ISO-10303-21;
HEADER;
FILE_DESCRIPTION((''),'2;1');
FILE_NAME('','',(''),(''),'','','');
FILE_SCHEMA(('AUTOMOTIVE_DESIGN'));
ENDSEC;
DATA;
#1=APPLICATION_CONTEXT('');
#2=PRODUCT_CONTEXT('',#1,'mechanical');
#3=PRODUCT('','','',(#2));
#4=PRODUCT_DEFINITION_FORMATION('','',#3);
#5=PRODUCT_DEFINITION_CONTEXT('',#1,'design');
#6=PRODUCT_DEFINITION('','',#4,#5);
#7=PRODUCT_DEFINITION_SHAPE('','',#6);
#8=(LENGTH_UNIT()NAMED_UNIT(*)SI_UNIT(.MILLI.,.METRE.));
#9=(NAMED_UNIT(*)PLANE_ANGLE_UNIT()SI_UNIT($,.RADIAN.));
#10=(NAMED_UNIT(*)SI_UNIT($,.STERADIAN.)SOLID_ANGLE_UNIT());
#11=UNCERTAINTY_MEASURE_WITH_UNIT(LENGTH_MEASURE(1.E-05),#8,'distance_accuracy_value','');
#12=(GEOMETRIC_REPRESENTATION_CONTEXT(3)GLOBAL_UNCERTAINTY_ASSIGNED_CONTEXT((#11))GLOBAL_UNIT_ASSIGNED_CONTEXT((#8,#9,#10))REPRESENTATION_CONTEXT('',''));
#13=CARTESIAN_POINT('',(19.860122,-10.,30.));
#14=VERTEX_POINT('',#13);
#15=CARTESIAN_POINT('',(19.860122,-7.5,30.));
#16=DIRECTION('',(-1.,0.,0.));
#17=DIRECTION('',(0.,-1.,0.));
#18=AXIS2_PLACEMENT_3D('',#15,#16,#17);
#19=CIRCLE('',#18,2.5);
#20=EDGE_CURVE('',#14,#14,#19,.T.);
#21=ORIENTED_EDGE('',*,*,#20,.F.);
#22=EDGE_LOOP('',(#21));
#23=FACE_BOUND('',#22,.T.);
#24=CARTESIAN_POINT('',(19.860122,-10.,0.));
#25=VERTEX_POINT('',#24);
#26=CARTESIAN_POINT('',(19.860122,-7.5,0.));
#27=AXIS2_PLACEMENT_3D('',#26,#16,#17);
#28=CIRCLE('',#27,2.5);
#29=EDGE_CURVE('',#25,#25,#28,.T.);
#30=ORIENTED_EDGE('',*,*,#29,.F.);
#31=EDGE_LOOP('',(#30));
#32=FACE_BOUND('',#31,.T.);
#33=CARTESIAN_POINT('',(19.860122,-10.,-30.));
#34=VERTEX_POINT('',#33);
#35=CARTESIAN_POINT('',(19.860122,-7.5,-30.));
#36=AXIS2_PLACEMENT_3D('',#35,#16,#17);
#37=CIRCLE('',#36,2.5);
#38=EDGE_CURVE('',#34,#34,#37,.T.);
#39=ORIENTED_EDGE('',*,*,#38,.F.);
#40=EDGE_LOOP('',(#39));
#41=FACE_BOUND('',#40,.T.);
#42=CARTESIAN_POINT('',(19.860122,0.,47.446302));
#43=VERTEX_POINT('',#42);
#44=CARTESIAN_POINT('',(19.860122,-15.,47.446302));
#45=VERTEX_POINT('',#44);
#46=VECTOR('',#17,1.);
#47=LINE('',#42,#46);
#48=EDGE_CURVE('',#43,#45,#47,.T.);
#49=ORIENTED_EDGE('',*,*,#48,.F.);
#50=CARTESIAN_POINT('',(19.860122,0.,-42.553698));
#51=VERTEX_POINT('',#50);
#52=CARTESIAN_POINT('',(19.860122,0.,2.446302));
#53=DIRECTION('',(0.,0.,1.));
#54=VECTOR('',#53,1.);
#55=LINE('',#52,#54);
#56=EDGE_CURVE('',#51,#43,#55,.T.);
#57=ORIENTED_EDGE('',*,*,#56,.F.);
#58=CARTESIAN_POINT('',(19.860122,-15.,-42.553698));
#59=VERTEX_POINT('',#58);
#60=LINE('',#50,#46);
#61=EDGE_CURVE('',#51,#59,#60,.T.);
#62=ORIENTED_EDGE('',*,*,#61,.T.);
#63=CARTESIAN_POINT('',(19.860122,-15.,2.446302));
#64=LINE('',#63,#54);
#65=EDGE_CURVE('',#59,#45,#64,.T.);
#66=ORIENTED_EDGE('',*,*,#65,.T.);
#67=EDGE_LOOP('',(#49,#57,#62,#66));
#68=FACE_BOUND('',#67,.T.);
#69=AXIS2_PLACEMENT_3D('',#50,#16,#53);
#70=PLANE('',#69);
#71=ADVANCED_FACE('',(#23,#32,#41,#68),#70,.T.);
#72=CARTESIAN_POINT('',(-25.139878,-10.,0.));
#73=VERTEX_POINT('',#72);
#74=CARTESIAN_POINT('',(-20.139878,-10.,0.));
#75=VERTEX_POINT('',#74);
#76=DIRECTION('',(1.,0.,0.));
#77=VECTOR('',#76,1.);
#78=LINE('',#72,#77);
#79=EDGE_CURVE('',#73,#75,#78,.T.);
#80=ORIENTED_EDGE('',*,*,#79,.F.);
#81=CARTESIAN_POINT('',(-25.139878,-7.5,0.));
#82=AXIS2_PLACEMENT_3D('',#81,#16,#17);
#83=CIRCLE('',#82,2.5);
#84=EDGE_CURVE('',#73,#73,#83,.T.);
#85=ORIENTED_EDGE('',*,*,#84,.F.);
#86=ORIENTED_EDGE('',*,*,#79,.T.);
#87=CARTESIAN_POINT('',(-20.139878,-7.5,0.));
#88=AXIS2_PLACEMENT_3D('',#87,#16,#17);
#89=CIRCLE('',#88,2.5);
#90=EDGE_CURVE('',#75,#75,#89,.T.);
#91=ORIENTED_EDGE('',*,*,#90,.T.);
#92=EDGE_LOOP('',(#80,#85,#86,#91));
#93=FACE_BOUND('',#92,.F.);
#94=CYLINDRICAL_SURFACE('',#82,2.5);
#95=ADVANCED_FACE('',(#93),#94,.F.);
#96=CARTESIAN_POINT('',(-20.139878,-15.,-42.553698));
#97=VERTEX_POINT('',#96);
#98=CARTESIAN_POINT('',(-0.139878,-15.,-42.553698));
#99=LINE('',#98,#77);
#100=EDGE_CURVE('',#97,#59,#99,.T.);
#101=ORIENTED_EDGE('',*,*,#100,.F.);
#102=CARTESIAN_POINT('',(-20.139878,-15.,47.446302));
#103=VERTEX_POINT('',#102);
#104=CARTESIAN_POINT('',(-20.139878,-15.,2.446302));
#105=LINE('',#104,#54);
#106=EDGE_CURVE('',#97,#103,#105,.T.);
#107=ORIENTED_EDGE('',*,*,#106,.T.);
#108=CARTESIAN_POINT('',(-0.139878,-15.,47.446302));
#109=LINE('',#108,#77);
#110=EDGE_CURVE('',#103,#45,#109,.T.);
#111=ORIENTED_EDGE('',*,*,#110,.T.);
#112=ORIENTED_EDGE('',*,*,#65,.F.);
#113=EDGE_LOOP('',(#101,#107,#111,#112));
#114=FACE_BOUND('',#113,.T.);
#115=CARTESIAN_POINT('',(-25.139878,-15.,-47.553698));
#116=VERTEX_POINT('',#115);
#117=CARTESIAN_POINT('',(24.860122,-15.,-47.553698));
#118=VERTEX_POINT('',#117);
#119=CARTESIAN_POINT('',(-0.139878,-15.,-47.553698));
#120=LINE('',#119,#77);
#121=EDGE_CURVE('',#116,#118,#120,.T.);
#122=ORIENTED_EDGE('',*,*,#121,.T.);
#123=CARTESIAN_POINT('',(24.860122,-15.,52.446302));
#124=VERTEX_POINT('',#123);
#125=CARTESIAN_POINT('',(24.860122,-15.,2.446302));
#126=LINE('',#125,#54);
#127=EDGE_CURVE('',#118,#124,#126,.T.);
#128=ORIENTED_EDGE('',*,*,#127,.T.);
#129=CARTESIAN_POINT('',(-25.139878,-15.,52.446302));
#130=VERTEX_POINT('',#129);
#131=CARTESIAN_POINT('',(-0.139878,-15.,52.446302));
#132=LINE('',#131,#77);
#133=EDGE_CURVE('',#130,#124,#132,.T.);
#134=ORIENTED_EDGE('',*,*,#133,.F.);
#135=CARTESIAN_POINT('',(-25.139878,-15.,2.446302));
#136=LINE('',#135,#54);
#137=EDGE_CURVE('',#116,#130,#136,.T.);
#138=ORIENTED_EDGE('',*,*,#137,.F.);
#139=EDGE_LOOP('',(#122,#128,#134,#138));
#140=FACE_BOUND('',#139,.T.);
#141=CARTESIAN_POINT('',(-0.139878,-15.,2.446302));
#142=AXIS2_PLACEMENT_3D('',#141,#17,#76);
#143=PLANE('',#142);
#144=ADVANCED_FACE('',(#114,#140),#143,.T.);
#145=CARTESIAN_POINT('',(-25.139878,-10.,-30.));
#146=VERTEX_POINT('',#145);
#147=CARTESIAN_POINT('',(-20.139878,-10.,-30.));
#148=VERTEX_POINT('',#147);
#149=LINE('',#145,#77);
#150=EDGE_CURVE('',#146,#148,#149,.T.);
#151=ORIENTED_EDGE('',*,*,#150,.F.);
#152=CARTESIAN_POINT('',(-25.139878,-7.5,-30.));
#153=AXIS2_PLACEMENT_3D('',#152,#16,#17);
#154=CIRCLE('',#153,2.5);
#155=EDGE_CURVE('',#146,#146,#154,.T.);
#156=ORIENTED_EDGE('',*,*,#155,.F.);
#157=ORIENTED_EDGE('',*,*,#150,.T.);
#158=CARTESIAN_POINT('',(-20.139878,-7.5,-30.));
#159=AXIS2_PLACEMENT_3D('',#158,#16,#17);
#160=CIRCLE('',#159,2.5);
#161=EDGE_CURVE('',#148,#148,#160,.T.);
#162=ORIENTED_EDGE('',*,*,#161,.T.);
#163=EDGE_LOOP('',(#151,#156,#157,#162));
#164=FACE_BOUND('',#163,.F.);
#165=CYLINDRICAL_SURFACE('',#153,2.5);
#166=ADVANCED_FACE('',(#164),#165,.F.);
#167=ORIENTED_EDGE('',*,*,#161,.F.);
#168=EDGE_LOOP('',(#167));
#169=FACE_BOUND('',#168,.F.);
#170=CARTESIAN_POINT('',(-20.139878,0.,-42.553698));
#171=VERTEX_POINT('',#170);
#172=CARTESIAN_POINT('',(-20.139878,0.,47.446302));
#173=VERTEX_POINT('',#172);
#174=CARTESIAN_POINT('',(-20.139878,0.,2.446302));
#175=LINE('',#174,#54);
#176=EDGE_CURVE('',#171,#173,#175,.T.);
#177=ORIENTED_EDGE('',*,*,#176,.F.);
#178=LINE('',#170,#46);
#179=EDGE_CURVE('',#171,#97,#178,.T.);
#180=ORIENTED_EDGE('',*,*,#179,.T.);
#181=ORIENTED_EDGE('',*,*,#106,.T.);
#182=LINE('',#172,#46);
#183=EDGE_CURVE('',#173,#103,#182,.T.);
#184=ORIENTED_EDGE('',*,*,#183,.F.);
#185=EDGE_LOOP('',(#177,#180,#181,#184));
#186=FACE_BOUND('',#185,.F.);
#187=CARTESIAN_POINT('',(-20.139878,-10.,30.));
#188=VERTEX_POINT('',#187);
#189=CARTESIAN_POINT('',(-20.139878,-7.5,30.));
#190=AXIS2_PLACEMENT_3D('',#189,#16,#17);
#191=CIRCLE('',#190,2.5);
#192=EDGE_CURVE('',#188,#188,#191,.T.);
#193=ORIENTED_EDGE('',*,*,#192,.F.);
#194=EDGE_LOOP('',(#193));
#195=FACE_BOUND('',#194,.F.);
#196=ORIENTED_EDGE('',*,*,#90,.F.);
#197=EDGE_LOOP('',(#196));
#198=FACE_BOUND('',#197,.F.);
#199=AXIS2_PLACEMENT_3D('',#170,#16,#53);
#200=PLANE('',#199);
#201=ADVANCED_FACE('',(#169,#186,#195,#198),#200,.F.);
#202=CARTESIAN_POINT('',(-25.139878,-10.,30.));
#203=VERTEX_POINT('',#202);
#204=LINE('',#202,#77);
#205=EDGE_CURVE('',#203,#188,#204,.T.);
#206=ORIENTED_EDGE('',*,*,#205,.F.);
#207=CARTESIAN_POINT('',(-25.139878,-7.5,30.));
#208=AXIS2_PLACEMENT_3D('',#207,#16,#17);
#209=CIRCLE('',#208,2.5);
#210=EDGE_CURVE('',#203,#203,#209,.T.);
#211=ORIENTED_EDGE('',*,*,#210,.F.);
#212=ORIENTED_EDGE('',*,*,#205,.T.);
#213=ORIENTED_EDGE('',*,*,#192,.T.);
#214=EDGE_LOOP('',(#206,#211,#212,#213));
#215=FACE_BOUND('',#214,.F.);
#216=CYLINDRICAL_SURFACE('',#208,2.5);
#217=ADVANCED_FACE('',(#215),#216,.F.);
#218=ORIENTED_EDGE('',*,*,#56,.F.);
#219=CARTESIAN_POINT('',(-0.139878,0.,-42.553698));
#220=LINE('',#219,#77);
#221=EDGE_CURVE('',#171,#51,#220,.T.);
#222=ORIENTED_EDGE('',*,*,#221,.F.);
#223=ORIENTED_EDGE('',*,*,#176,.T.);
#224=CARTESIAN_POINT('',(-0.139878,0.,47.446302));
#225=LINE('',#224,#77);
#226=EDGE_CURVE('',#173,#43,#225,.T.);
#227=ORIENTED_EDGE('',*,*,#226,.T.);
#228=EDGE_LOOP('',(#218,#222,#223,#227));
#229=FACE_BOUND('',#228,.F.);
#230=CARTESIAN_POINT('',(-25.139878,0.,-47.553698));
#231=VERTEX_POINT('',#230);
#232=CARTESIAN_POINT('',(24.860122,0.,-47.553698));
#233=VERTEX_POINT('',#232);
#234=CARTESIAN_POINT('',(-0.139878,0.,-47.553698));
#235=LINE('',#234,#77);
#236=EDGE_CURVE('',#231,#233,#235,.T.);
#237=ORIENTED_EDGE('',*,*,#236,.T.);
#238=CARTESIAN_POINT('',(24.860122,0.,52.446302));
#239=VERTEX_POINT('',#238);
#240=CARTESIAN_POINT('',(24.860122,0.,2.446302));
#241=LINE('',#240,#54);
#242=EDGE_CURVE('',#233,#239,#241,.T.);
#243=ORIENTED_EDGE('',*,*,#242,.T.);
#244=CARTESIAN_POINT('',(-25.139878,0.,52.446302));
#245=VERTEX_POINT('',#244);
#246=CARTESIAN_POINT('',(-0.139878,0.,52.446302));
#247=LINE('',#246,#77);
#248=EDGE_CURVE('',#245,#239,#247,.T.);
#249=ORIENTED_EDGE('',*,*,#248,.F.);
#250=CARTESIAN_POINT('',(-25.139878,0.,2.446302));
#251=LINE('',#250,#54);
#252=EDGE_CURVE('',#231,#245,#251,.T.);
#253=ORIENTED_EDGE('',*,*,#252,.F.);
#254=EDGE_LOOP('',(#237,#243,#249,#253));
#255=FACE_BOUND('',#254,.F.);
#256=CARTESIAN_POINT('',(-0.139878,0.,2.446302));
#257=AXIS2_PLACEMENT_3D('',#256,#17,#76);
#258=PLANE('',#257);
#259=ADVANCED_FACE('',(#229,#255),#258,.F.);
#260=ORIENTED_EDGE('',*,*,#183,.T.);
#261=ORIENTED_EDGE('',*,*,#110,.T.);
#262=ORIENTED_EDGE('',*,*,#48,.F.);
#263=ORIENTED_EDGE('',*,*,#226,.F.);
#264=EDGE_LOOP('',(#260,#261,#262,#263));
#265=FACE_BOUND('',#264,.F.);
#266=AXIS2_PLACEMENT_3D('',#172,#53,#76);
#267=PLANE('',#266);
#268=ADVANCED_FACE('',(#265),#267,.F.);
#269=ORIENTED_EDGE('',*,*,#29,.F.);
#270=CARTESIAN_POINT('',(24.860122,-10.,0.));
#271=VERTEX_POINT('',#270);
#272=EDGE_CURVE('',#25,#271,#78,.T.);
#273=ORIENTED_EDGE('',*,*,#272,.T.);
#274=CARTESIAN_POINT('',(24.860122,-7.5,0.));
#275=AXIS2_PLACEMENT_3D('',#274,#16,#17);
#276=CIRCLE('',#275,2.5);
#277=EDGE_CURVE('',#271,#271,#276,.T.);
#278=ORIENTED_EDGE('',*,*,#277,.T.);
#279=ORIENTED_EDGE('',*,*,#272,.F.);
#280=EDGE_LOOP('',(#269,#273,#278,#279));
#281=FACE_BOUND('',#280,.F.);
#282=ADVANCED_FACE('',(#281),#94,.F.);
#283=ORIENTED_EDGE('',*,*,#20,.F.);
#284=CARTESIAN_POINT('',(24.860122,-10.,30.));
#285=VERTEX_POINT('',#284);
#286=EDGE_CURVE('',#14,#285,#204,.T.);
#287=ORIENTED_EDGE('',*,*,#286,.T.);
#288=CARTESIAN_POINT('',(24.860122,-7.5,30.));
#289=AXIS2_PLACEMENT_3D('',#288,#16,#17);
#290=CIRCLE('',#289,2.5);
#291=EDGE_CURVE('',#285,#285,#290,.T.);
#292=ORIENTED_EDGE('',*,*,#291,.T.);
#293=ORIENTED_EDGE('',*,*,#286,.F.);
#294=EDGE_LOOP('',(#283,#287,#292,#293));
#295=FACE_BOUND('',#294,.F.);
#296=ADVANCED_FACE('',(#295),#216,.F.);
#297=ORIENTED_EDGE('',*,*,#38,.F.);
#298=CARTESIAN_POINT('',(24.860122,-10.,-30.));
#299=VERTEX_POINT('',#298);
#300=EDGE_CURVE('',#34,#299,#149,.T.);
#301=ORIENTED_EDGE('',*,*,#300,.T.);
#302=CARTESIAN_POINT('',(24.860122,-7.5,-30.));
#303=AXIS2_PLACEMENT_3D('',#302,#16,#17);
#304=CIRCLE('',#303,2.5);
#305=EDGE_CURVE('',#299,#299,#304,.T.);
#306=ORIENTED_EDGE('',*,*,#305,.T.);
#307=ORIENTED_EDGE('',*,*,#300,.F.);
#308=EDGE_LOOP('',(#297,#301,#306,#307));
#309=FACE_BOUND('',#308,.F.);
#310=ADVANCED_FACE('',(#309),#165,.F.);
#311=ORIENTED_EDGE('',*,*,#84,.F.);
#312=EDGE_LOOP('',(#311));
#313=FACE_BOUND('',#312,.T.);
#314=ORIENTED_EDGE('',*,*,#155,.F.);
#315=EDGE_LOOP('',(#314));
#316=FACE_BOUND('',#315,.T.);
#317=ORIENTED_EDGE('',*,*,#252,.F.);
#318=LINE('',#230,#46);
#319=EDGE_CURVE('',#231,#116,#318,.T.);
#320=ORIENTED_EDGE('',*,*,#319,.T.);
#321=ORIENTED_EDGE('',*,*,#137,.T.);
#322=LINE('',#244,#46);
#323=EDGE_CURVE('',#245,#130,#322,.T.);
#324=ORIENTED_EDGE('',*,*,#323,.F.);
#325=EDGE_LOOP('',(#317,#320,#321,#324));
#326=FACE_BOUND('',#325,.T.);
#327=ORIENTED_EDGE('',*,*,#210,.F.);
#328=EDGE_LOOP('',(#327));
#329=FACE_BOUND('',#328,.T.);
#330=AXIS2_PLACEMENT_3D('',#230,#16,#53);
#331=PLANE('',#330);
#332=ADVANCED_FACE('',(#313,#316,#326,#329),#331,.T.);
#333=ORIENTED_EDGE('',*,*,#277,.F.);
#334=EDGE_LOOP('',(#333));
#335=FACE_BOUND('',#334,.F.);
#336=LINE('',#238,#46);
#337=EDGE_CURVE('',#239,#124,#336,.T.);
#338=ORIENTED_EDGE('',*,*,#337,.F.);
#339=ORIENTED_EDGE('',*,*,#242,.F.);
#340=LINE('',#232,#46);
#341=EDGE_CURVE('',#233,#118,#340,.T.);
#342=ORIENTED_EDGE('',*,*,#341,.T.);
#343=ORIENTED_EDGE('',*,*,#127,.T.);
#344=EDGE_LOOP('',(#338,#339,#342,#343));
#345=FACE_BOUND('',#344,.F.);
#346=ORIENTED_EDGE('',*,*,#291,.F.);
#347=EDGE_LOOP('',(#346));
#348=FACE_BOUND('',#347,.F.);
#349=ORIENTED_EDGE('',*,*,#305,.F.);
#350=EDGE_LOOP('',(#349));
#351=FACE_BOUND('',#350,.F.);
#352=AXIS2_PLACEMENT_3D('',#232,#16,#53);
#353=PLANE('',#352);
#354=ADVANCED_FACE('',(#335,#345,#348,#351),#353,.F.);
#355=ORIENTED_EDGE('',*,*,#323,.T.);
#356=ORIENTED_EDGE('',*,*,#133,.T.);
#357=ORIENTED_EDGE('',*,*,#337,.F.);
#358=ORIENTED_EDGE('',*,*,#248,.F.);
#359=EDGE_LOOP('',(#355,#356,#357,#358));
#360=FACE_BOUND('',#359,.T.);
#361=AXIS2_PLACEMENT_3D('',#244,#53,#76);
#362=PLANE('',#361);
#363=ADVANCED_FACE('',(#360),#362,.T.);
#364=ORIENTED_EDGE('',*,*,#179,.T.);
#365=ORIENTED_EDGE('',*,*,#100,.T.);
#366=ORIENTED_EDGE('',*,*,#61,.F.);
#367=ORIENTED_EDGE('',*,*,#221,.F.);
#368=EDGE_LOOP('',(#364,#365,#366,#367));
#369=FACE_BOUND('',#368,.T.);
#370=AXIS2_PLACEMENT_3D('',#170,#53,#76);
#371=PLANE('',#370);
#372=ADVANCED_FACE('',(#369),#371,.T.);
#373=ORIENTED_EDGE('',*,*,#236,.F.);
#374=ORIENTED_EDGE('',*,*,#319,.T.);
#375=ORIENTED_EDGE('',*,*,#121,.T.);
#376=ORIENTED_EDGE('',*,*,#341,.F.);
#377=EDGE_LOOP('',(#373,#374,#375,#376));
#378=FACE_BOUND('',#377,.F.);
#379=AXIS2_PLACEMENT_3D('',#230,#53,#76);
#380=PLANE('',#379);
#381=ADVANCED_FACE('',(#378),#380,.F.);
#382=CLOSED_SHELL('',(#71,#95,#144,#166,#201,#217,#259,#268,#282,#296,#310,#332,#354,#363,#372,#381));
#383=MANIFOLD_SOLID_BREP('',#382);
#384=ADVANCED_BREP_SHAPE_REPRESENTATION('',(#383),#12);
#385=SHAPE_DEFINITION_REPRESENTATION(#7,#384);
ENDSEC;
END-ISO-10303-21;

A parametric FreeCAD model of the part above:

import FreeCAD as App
import Part
import Sketcher
from FreeCAD import Vector
Q = App.Units.Quantity


def add_polygon(sketch, points):
    """Adds a closed chain of lines whose ends are joined by coincident constraints."""
    first, n = sketch.GeometryCount, len(points)
    for a, b in zip(points, points[1:] + points[:1]):
        sketch.addGeometry(Part.LineSegment(App.Vector(*a, 0), App.Vector(*b, 0)), False)
    for i in range(n):
        sketch.addConstraint(Sketcher.Constraint("Coincident", first + i, 2, first + (i + 1) % n, 1))

doc = App.newDocument("Part")
body = doc.addObject("PartDesign::Body", "Body")

# Sketch on XZ plane
sketch1 = doc.addObject("Sketcher::SketchObject", "Sketch")
body.addObject(sketch1)
sketch1.AttachmentSupport = (doc.XZ_Plane, [""])
sketch1.MapMode = "FlatFace"
add_polygon(sketch1, [(-25, 52), (-25, -48), (25, -48), (25, 52)])  # lines 0-3
add_polygon(sketch1, [(20, -43), (-20, -43), (-20, 47), (20, 47)])  # lines 4-7
sketch1.addConstraint(Sketcher.Constraint("Vertical", 0))
sketch1.addConstraint(Sketcher.Constraint("Horizontal", 1))
sketch1.addConstraint(Sketcher.Constraint("Vertical", 2))
sketch1.addConstraint(Sketcher.Constraint("Horizontal", 3))
sketch1.addConstraint(Sketcher.Constraint("Horizontal", 4))
sketch1.addConstraint(Sketcher.Constraint("Vertical", 5))
sketch1.addConstraint(Sketcher.Constraint("Horizontal", 6))
sketch1.addConstraint(Sketcher.Constraint("Vertical", 7))
sketch1.addConstraint(Sketcher.Constraint("DistanceX", 1, 1, 1, 2, Q("50 mm")))
sketch1.addConstraint(Sketcher.Constraint("DistanceX", 4, 2, 4, 1, Q("40 mm")))
sketch1.addConstraint(Sketcher.Constraint("DistanceY", 0, 2, 0, 1, Q("100 mm")))
sketch1.addConstraint(Sketcher.Constraint("DistanceY", 5, 1, 5, 2, Q("90 mm")))
sketch1.addConstraint(Sketcher.Constraint("DistanceX", 0, 2, 4, 2, Q("5 mm")))
sketch1.addConstraint(Sketcher.Constraint("DistanceY", 0, 2, 4, 2, Q("5 mm")))
sketch1.addConstraint(Sketcher.Constraint("DistanceX", 0, 2, -1, 1, Q("25.139878 mm")))
sketch1.addConstraint(Sketcher.Constraint("DistanceY", 0, 2, -1, 1, Q("47.553698 mm")))
pad1 = doc.addObject("PartDesign::Pad", "Pad")
body.addObject(pad1)
pad1.Profile = sketch1
pad1.Length = 15

# Sketch on YZ plane
sketch2 = doc.addObject("Sketcher::SketchObject", "Sketch001")
body.addObject(sketch2)
sketch2.AttachmentSupport = (doc.YZ_Plane, [""])
sketch2.MapMode = "FlatFace"
sketch2.AttachmentOffset = App.Placement(Vector(0, 0, -25.139878), App.Rotation())
sketch2.addGeometry(Part.Circle(Vector(-7.5, 30, 0), Vector(0, 0, 1), 2.5), False)
sketch2.addGeometry(Part.Circle(Vector(-7.5, 0, 0), Vector(0, 0, 1), 2.5), False)
sketch2.addGeometry(Part.Circle(Vector(-7.5, -30, 0), Vector(0, 0, 1), 2.5), False)
sketch2.addConstraint(Sketcher.Constraint("Equal", 0, 1))
sketch2.addConstraint(Sketcher.Constraint("Equal", 1, 2))
sketch2.addConstraint(Sketcher.Constraint("Symmetric", 0, 3, 2, 3, -1))
sketch2.addConstraint(Sketcher.Constraint("PointOnObject", 1, 3, -1))
sketch2.addConstraint(Sketcher.Constraint("Vertical", 0, 3, 1, 3))
sketch2.addConstraint(Sketcher.Constraint("Diameter", 0, Q("5 mm")))
sketch2.addConstraint(Sketcher.Constraint("DistanceY", -1, 1, 0, 3, Q("30 mm")))
sketch2.addConstraint(Sketcher.Constraint("DistanceX", 0, 3, -1, 1, Q("7.5 mm")))
pocket1 = doc.addObject("PartDesign::Pocket", "Pocket")
body.addObject(pocket1)
pocket1.Profile = sketch2
pocket1.Type = "ThroughAll"
pocket1.Reversed = True

doc.recompute()
